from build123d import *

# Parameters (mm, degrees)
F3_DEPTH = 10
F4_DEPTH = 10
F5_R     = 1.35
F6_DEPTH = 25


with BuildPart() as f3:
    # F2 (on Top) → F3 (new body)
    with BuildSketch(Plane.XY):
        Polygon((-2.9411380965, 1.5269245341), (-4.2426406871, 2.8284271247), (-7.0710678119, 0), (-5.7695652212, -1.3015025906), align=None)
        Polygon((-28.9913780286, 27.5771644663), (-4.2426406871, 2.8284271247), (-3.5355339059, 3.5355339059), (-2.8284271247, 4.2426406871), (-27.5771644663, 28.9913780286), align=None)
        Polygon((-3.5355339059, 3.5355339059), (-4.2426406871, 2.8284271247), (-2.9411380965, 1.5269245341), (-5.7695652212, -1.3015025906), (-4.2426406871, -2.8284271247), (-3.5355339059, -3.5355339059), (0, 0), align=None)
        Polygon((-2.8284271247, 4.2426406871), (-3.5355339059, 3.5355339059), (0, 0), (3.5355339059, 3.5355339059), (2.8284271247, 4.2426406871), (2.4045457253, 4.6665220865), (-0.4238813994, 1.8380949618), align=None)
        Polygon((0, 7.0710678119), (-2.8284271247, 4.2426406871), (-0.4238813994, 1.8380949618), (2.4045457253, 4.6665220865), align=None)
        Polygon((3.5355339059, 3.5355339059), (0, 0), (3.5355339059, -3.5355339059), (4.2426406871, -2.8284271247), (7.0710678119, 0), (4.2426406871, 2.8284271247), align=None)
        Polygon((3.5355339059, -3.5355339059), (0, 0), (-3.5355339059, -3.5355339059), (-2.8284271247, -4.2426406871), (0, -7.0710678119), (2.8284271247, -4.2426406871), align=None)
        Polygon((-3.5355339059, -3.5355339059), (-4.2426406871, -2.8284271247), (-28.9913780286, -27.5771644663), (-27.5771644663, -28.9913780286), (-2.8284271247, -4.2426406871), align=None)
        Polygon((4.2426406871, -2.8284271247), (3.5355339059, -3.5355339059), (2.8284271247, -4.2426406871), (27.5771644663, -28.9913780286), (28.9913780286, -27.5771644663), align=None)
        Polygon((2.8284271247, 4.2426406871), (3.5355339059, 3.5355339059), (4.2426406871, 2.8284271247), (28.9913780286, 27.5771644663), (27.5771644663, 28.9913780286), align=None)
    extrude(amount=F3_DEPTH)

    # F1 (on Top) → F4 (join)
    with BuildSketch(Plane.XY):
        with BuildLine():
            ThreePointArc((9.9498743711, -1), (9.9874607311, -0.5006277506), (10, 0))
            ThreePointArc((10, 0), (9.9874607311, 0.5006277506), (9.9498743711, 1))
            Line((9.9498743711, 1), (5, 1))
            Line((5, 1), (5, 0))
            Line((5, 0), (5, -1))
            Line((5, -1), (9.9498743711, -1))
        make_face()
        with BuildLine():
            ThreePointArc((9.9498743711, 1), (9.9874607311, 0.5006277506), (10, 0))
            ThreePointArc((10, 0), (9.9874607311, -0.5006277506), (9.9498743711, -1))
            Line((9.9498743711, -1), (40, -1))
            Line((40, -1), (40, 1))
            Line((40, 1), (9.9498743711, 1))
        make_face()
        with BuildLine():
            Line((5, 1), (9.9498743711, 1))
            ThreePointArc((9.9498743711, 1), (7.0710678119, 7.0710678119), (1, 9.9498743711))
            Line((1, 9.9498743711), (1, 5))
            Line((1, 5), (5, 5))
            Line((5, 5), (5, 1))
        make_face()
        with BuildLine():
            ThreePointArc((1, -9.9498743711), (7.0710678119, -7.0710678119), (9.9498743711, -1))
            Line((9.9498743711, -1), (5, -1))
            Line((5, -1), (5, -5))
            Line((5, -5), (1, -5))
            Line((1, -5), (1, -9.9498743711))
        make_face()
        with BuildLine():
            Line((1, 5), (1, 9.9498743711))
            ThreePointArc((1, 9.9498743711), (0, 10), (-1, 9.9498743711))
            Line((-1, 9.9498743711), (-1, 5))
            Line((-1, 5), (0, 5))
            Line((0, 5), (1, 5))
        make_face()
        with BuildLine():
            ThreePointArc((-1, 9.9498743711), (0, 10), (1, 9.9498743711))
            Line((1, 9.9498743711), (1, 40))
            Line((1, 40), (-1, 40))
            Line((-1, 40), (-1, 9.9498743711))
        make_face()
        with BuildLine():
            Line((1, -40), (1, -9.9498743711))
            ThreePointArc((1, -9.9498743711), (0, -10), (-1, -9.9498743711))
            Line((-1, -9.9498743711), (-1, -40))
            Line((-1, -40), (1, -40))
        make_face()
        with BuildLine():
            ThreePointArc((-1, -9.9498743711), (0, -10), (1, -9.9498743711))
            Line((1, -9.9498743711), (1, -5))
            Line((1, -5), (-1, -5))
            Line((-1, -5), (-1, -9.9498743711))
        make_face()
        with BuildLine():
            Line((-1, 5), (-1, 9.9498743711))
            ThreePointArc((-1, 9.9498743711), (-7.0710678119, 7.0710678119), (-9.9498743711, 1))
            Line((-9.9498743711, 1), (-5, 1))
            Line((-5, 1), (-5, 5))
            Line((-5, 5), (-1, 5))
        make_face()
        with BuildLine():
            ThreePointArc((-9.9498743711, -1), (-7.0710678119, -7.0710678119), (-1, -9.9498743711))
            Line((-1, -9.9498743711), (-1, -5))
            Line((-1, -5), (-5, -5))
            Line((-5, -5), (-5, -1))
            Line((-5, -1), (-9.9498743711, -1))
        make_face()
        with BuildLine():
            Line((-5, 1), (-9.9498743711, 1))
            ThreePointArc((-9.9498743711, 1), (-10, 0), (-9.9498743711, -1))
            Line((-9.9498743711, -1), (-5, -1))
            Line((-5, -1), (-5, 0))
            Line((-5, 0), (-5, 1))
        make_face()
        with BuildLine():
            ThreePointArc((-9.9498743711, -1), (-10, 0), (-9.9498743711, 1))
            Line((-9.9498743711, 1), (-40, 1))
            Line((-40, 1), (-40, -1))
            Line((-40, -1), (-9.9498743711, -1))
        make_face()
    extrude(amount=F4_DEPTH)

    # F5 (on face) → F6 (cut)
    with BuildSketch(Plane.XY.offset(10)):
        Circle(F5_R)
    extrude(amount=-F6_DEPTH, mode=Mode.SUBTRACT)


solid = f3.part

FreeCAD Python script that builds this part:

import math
import FreeCAD as App
import Part
import Sketcher

V = App.Vector


def add_polygon(sketch, points):
    """Adds a closed chain of lines whose ends are joined by coincident constraints."""
    first, n = sketch.GeometryCount, len(points)
    for a, b in zip(points, points[1:] + points[:1]):
        sketch.addGeometry(Part.LineSegment(App.Vector(*a, 0), App.Vector(*b, 0)), False)
    for i in range(n):
        sketch.addConstraint(Sketcher.Constraint("Coincident", first + i, 2, first + (i + 1) % n, 1))

doc = App.newDocument("Part")
params = doc.addObject("Spreadsheet::Sheet", "Params")
for row, (alias, value) in enumerate([
    ("sketch1_length", "4 mm"),
    ("sketch1_length2", "35 mm"),
    ("sketch1_length3", "2 mm"),
    ("pad1_length", "10 mm"),
    ("sketch2_radius", "10 mm"),
    ("sketch2_width", "2 mm"),
    ("sketch2_width2", "10 mm"),
    ("pad2_length", "10 mm"),
    ("sketch3_diameter", "2.7 mm"),
    ("pocket1_length", "25 mm"),
], start=1):
    params.set(f"A{row}", alias)
    params.set(f"B{row}", "=" + value)
    params.setAlias(f"B{row}", alias)

body = doc.addObject("PartDesign::Body", "Body")

# Sketch on XY plane
sketch1 = doc.addObject("Sketcher::SketchObject", "Sketch")
body.addObject(sketch1)
sketch1.AttachmentSupport = (doc.XY_Plane, [""])
sketch1.MapMode = "FlatFace"
add_polygon(sketch1, [(-4.2, 2.8), (-7.1, 0), (-5.8, -1.3), (-4.2, -2.8), (-29, -27.6), (-27.6, -29), (-2.8, -4.2), (0, -7.1), (2.8, -4.2), (27.6, -29), (29, -27.6), (4.2, -2.8), (7.1, 0), (4.2, 2.8), (29, 27.6), (27.6, 29), (2.8, 4.2), (2.4, 4.7), (0, 7.1), (-2.8, 4.2), (-27.6, 29), (-29, 27.6)])  # lines 0-21
sketch1.addConstraint(Sketcher.Constraint("Symmetric", 0, 2, 11, 2, -1, 1))
sketch1.addConstraint(Sketcher.Constraint("Symmetric", 2, 2, 12, 2, -1, 1))
sketch1.addConstraint(Sketcher.Constraint("Symmetric", 3, 2, 13, 2, -1, 1))
sketch1.addConstraint(Sketcher.Constraint("Symmetric", 4, 2, 14, 2, -1, 1))
sketch1.addConstraint(Sketcher.Constraint("Symmetric", 5, 2, 15, 2, -1, 1))
sketch1.addConstraint(Sketcher.Constraint("Symmetric", 6, 2, 17, 2, -1, 1))
sketch1.addConstraint(Sketcher.Constraint("Symmetric", 7, 2, 18, 2, -1, 1))
sketch1.addConstraint(Sketcher.Constraint("Symmetric", 8, 2, 19, 2, -1, 1))
sketch1.addConstraint(Sketcher.Constraint("Symmetric", 9, 2, 20, 2, -1, 1))
sketch1.addConstraint(Sketcher.Constraint("Symmetric", 10, 2, 21, 2, -1, 1))
sketch1.addConstraint(Sketcher.Constraint("Symmetric", 5, 2, 7, 2, -2))
sketch1.addConstraint(Sketcher.Constraint("Symmetric", 4, 2, 8, 2, -2))
sketch1.addConstraint(Sketcher.Constraint("Symmetric", 3, 2, 9, 2, -2))
sketch1.addConstraint(Sketcher.Constraint("Symmetric", 2, 2, 10, 2, -2))
sketch1.addConstraint(Sketcher.Constraint("PointOnObject", 0, 2, -1))
sketch1.addConstraint(Sketcher.Constraint("PointOnObject", 6, 2, -2))
sketch1.addConstraint(Sketcher.Constraint("Perpendicular", 0, 1))
sketch1.addConstraint(Sketcher.Constraint("Parallel", 1, 2))
sketch1.addConstraint(Sketcher.Constraint("Perpendicular", 2, 3))
sketch1.addConstraint(Sketcher.Constraint("Perpendicular", 3, 4))
sketch1.addConstraint(Sketcher.Constraint("Perpendicular", 4, 5))
sketch1.addConstraint(Sketcher.Constraint("Perpendicular", 5, 6))
sketch1.addConstraint(Sketcher.Constraint("Perpendicular", 15, 16))
sketch1.addConstraint(Sketcher.Constraint("Equal", 3, 5))
sketch1.addConstraint(Sketcher.Constraint("Equal", 0, 6))
sketch1.addConstraint(Sketcher.Constraint("Distance", 0, 4.0))
sketch1.addConstraint(Sketcher.Constraint("Distance", 3, 35.0))
sketch1.addConstraint(Sketcher.Constraint("Distance", 4, 2.0))
sketch1.addConstraint(Sketcher.Constraint("DistanceX", 4, 2, 1, 2, 21.807599))
sketch1.addConstraint(Sketcher.Constraint("Distance", 16, 0.599459))
sketch1.setExpression("Constraints[47]", "Params.sketch1_length")
sketch1.setExpression("Constraints[48]", "Params.sketch1_length2")
sketch1.setExpression("Constraints[49]", "Params.sketch1_length3")
pad1 = doc.addObject("PartDesign::Pad", "Pad")
body.addObject(pad1)
pad1.Profile = sketch1
pad1.setExpression("Length", "Params.pad1_length")

# Sketch on XY plane
sketch2 = doc.addObject("Sketcher::SketchObject", "Sketch001")
body.addObject(sketch2)
sketch2.AttachmentSupport = (doc.XY_Plane, [""])
sketch2.MapMode = "FlatFace"
sketch2.addGeometry(Part.LineSegment(V(9.9, -1, 0), V(40, -1, 0)), False)  # 0
sketch2.addGeometry(Part.LineSegment(V(40, -1, 0), V(40, 1, 0)), False)  # 1
sketch2.addGeometry(Part.LineSegment(V(40, 1, 0), V(9.9, 1, 0)), False)  # 2
sketch2.addGeometry(Part.ArcOfCircle(Part.Circle(V(0, 0, 0), V(0, 0, 1), 10), math.radians(6), math.radians(84)), False)  # 3
sketch2.addGeometry(Part.LineSegment(V(1, 9.9, 0), V(1, 40, 0)), False)  # 4
sketch2.addGeometry(Part.LineSegment(V(1, 40, 0), V(-1, 40, 0)), False)  # 5
sketch2.addGeometry(Part.LineSegment(V(-1, 40, 0), V(-1, 9.9, 0)), False)  # 6
sketch2.addGeometry(Part.ArcOfCircle(Part.Circle(V(0, 0, 0), V(0, 0, 1), 10), math.radians(96), math.radians(174)), False)  # 7
sketch2.addGeometry(Part.LineSegment(V(-9.9, 1, 0), V(-40, 1, 0)), False)  # 8
sketch2.addGeometry(Part.LineSegment(V(-40, 1, 0), V(-40, -1, 0)), False)  # 9
sketch2.addGeometry(Part.LineSegment(V(-40, -1, 0), V(-9.9, -1, 0)), False)  # 10
sketch2.addGeometry(Part.ArcOfCircle(Part.Circle(V(0, 0, 0), V(0, 0, 1), 10), math.radians(-174), math.radians(-96)), False)  # 11
sketch2.addGeometry(Part.LineSegment(V(-1, -9.9, 0), V(-1, -40, 0)), False)  # 12
sketch2.addGeometry(Part.LineSegment(V(-1, -40, 0), V(1, -40, 0)), False)  # 13
sketch2.addGeometry(Part.LineSegment(V(1, -40, 0), V(1, -9.9, 0)), False)  # 14
sketch2.addGeometry(Part.ArcOfCircle(Part.Circle(V(0, 0, 0), V(0, 0, 1), 10), math.radians(-84), math.radians(-6)), False)  # 15
add_polygon(sketch2, [(-5, 5), (5, 5), (5, -5), (-5, -5)])  # lines 16-19
sketch2.addConstraint(Sketcher.Constraint("Coincident", 0, 2, 1, 1))
sketch2.addConstraint(Sketcher.Constraint("Coincident", 1, 2, 2, 1))
sketch2.addConstraint(Sketcher.Constraint("Coincident", 2, 2, 3, 1))
sketch2.addConstraint(Sketcher.Constraint("Coincident", 3, 2, 4, 1))
sketch2.addConstraint(Sketcher.Constraint("Coincident", 4, 2, 5, 1))
sketch2.addConstraint(Sketcher.Constraint("Coincident", 5, 2, 6, 1))
sketch2.addConstraint(Sketcher.Constraint("Coincident", 6, 2, 7, 1))
sketch2.addConstraint(Sketcher.Constraint("Coincident", 7, 2, 8, 1))
sketch2.addConstraint(Sketcher.Constraint("Coincident", 8, 2, 9, 1))
sketch2.addConstraint(Sketcher.Constraint("Coincident", 9, 2, 10, 1))
sketch2.addConstraint(Sketcher.Constraint("Coincident", 10, 2, 11, 1))
sketch2.addConstraint(Sketcher.Constraint("Coincident", 11, 2, 12, 1))
sketch2.addConstraint(Sketcher.Constraint("Coincident", 12, 2, 13, 1))
sketch2.addConstraint(Sketcher.Constraint("Coincident", 13, 2, 14, 1))
sketch2.addConstraint(Sketcher.Constraint("Coincident", 14, 2, 15, 1))
sketch2.addConstraint(Sketcher.Constraint("Coincident", 15, 2, 0, 1))
sketch2.addConstraint(Sketcher.Constraint("Horizontal", 0))
sketch2.addConstraint(Sketcher.Constraint("Vertical", 1))
sketch2.addConstraint(Sketcher.Constraint("Horizontal", 2))
sketch2.addConstraint(Sketcher.Constraint("Vertical", 4))
sketch2.addConstraint(Sketcher.Constraint("Horizontal", 5))
sketch2.addConstraint(Sketcher.Constraint("Vertical", 6))
sketch2.addConstraint(Sketcher.Constraint("Horizontal", 8))
sketch2.addConstraint(Sketcher.Constraint("Vertical", 9))
sketch2.addConstraint(Sketcher.Constraint("Horizontal", 10))
sketch2.addConstraint(Sketcher.Constraint("Vertical", 12))
sketch2.addConstraint(Sketcher.Constraint("Horizontal", 13))
sketch2.addConstraint(Sketcher.Constraint("Vertical", 14))
sketch2.addConstraint(Sketcher.Constraint("Horizontal", 16))
sketch2.addConstraint(Sketcher.Constraint("Vertical", 17))
sketch2.addConstraint(Sketcher.Constraint("Horizontal", 18))
sketch2.addConstraint(Sketcher.Constraint("Vertical", 19))
sketch2.addConstraint(Sketcher.Constraint("Coincident", 3, 3, -1, 1))
sketch2.addConstraint(Sketcher.Constraint("Coincident", 7, 3, -1, 1))
sketch2.addConstraint(Sketcher.Constraint("Coincident", 11, 3, -1, 1))
sketch2.addConstraint(Sketcher.Constraint("Coincident", 15, 3, -1, 1))
sketch2.addConstraint(Sketcher.Constraint("Equal", 3, 7))
sketch2.addConstraint(Sketcher.Constraint("Equal", 7, 11))
sketch2.addConstraint(Sketcher.Constraint("Equal", 11, 15))
sketch2.addConstraint(Sketcher.Constraint("Symmetric", 0, 2, 8, 2, -1, 1))
sketch2.addConstraint(Sketcher.Constraint("Symmetric", 4, 2, 12, 2, -1, 1))
sketch2.addConstraint(Sketcher.Constraint("Symmetric", 16, 2, 18, 2, -1, 1))
sketch2.addConstraint(Sketcher.Constraint("Horizontal", 3, 2, 6, 2))
sketch2.addConstraint(Sketcher.Constraint("Horizontal", 2, 2, 7, 2))
sketch2.addConstraint(Sketcher.Constraint("Horizontal", 0, 2, 9, 2))
sketch2.addConstraint(Sketcher.Constraint("Horizontal", 11, 2, 14, 2))
sketch2.addConstraint(Sketcher.Constraint("Equal", 13, 1))
sketch2.addConstraint(Sketcher.Constraint("Equal", 10, 4))
sketch2.addConstraint(Sketcher.Constraint("Equal", 18, 17))
sketch2.addConstraint(Sketcher.Constraint("Radius", 3, 10.0))
sketch2.addConstraint(Sketcher.Constraint("DistanceX", 5, 2, 5, 1, 2.0))
sketch2.addConstraint(Sketcher.Constraint("DistanceX", 16, 1, 16, 2, 10.0))
sketch2.addConstraint(Sketcher.Constraint("DistanceX", -1, 1, 0, 2, 40.0))
sketch2.setExpression("Constraints[53]", "Params.sketch2_radius")
sketch2.setExpression("Constraints[54]", "Params.sketch2_width")
sketch2.setExpression("Constraints[55]", "Params.sketch2_width2")
pad2 = doc.addObject("PartDesign::Pad", "Pad001")
body.addObject(pad2)
pad2.Profile = sketch2
pad2.setExpression("Length", "Params.pad2_length")

# Sketch on XY plane
sketch3 = doc.addObject("Sketcher::SketchObject", "Sketch002")
body.addObject(sketch3)
sketch3.AttachmentSupport = (doc.XY_Plane, [""])
sketch3.MapMode = "FlatFace"
sketch3.AttachmentOffset = App.Placement(V(0, 0, 10), App.Rotation())
sketch3.addGeometry(Part.Circle(V(0, 0, 0), V(0, 0, 1), 1.4), False)
sketch3.addConstraint(Sketcher.Constraint("Coincident", 0, 3, -1, 1))
sketch3.addConstraint(Sketcher.Constraint("Diameter", 0, 2.7))
sketch3.setExpression("Constraints[1]", "Params.sketch3_diameter")
pocket1 = doc.addObject("PartDesign::Pocket", "Pocket")
body.addObject(pocket1)
pocket1.Profile = sketch3
pocket1.setExpression("Length", "Params.pocket1_length")

doc.recompute()
